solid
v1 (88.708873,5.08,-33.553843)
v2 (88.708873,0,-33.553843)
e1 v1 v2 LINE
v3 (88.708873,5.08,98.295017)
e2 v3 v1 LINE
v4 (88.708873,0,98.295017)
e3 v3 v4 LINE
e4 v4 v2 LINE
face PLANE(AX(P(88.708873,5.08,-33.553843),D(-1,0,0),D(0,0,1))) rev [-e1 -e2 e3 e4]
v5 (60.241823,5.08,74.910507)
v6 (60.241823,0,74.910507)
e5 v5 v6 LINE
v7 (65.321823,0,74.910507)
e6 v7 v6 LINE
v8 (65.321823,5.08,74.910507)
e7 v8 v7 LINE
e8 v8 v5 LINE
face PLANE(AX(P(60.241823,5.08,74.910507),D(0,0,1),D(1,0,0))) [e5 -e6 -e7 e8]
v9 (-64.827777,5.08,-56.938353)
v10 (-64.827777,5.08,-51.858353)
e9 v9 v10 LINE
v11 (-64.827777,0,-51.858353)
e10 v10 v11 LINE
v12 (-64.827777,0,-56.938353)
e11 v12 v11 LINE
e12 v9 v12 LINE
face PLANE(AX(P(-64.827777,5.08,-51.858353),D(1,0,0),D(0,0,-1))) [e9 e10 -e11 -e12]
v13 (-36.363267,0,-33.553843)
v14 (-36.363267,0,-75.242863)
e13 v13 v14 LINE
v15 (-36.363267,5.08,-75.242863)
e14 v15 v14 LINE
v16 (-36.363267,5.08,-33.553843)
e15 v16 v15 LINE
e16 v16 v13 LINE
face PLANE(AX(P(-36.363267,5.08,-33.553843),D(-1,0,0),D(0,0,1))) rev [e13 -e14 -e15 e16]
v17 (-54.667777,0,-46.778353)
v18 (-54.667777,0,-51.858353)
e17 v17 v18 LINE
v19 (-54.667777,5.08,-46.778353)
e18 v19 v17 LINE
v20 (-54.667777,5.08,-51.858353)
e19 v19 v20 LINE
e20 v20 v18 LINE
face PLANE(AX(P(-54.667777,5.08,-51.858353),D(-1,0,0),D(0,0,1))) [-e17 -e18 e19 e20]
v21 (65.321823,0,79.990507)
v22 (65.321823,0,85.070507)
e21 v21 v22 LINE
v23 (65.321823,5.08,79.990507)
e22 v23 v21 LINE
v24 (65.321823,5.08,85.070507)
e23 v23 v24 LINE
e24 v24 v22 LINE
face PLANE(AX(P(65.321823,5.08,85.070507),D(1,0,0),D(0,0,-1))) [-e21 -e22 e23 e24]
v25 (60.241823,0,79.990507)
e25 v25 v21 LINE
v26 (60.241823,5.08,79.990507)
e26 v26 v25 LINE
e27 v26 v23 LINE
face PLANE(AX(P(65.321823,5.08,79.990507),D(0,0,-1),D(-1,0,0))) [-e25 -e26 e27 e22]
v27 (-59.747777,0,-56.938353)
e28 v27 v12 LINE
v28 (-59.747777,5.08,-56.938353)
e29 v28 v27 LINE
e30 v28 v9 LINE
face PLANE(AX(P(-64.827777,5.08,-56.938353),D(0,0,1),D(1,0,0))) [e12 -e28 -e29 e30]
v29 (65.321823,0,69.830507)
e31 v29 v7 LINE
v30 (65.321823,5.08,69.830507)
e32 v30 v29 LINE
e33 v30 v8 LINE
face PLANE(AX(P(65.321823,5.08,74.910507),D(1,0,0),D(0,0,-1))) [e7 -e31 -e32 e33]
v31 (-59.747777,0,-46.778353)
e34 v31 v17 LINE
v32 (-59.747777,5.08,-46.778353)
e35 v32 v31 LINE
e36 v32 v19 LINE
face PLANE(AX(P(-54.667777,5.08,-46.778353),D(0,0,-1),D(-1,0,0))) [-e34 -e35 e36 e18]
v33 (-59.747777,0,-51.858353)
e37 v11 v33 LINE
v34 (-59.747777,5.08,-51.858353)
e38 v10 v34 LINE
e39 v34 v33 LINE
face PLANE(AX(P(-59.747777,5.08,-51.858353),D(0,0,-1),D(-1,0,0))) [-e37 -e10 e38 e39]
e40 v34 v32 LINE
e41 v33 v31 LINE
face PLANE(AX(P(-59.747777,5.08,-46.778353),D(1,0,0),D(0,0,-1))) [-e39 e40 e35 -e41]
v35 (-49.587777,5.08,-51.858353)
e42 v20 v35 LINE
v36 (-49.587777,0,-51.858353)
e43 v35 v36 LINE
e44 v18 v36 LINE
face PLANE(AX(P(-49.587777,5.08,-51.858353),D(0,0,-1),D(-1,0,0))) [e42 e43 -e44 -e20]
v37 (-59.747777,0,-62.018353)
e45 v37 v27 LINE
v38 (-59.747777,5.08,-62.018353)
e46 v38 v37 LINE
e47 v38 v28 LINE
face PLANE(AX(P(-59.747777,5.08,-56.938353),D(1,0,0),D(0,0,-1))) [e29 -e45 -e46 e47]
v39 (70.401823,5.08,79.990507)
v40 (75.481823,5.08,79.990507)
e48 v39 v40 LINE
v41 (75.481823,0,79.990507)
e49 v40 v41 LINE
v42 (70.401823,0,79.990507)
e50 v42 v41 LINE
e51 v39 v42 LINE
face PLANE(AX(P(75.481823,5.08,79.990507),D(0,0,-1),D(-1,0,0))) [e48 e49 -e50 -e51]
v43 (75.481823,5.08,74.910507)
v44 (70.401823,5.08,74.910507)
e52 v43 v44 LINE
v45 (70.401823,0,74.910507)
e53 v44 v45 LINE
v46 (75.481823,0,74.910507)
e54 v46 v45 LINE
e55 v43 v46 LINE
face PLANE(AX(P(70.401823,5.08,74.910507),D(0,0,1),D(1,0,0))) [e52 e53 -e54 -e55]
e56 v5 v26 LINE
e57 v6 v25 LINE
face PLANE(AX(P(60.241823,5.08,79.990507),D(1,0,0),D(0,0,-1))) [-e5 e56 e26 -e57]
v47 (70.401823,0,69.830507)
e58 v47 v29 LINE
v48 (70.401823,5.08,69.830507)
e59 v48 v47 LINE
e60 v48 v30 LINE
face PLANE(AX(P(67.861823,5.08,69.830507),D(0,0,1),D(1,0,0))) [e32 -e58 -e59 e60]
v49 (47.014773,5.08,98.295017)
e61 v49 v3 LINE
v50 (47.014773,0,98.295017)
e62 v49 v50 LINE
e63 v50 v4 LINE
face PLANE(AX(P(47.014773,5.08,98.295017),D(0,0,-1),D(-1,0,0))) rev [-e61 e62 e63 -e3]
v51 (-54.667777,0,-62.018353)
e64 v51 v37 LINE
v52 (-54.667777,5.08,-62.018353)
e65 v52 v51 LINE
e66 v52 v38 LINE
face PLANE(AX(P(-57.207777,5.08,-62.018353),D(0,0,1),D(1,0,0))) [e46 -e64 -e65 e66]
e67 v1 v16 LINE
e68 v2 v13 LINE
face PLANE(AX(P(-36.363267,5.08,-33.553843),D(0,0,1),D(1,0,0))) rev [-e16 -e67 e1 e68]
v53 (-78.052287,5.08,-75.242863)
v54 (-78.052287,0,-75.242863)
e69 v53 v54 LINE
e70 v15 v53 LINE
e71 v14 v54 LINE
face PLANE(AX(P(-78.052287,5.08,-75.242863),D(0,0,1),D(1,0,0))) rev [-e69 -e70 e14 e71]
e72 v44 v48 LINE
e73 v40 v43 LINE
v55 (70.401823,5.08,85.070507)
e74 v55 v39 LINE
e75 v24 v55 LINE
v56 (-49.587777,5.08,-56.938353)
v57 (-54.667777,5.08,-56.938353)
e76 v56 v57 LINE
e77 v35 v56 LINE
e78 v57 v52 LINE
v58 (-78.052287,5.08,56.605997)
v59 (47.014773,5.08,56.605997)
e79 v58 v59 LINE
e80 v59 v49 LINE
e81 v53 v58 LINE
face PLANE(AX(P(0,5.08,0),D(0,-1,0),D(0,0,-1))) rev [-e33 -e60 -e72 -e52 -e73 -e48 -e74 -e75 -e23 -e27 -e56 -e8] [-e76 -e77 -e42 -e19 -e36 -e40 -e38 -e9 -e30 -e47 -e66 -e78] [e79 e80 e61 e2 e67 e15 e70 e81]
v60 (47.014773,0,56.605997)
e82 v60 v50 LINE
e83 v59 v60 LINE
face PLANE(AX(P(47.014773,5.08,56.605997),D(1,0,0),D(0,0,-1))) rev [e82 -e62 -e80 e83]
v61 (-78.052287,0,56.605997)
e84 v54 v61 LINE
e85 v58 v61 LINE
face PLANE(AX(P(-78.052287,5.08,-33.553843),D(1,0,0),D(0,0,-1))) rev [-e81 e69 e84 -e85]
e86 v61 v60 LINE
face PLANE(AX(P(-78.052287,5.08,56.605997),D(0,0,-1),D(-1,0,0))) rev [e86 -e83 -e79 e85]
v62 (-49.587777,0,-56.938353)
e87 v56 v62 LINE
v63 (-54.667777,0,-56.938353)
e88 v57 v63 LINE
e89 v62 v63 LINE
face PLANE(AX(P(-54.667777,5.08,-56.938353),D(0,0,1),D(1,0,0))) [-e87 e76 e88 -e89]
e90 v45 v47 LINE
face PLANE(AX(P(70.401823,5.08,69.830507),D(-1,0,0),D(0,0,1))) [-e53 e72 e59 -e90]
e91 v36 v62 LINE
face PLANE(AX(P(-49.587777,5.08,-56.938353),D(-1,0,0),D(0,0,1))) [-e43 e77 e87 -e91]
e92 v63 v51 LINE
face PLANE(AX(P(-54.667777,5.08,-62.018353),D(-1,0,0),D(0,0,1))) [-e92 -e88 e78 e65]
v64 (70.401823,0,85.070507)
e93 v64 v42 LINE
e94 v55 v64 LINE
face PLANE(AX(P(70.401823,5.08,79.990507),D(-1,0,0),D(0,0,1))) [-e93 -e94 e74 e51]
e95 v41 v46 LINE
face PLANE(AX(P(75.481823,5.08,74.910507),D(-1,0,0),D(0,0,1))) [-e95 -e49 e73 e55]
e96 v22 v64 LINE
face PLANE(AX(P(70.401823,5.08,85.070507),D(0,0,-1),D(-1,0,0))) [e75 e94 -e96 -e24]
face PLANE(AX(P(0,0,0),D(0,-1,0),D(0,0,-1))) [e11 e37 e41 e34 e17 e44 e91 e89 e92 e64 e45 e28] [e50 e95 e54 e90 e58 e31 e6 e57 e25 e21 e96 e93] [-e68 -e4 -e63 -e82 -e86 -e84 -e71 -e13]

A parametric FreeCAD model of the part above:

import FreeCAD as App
import Part
import Sketcher

V = App.Vector
Q = App.Units.Quantity


def add_polygon(sketch, points):
    """Adds a closed chain of lines whose ends are joined by coincident constraints."""
    first, n = sketch.GeometryCount, len(points)
    for a, b in zip(points, points[1:] + points[:1]):
        sketch.addGeometry(Part.LineSegment(App.Vector(*a, 0), App.Vector(*b, 0)), False)
    for i in range(n):
        sketch.addConstraint(Sketcher.Constraint("Coincident", first + i, 2, first + (i + 1) % n, 1))

doc = App.newDocument("Part")
body = doc.addObject("PartDesign::Body", "Body")

sketch1 = doc.addObject("Sketcher::SketchObject", "Sketch")
body.addObject(sketch1)
sketch1.AttachmentSupport = (doc.XZ_Plane, [""])
sketch1.MapMode = "FlatFace"
add_polygon(sketch1, [(89, -34), (-36, -34), (-36, -75), (-78, -75), (-78, 57), (47, 57), (47, 98), (89, 98)])
add_polygon(sketch1, [(60, 75), (65, 75), (65, 70), (70, 70), (70, 75), (75, 75), (75, 80), (70, 80), (70, 85), (65, 85), (65, 80), (60, 80)])
add_polygon(sketch1, [(-55, -62), (-55, -57), (-50, -57), (-50, -52), (-55, -52), (-55, -47), (-60, -47), (-60, -52), (-65, -52), (-65, -57), (-60, -57), (-60, -62)])
sketch1.addConstraint(Sketcher.Constraint("Horizontal", 0))
sketch1.addConstraint(Sketcher.Constraint("Vertical", 1))
sketch1.addConstraint(Sketcher.Constraint("Horizontal", 2))
sketch1.addConstraint(Sketcher.Constraint("Vertical", 3))
sketch1.addConstraint(Sketcher.Constraint("Horizontal", 4))
sketch1.addConstraint(Sketcher.Constraint("Vertical", 5))
sketch1.addConstraint(Sketcher.Constraint("Horizontal", 6))
sketch1.addConstraint(Sketcher.Constraint("Vertical", 7))
sketch1.addConstraint(Sketcher.Constraint("Horizontal", 8))
sketch1.addConstraint(Sketcher.Constraint("Vertical", 9))
sketch1.addConstraint(Sketcher.Constraint("Horizontal", 10))
sketch1.addConstraint(Sketcher.Constraint("Vertical", 11))
sketch1.addConstraint(Sketcher.Constraint("Horizontal", 12))
sketch1.addConstraint(Sketcher.Constraint("Vertical", 13))
sketch1.addConstraint(Sketcher.Constraint("Horizontal", 14))
sketch1.addConstraint(Sketcher.Constraint("Vertical", 15))
sketch1.addConstraint(Sketcher.Constraint("Horizontal", 16))
sketch1.addConstraint(Sketcher.Constraint("Vertical", 17))
sketch1.addConstraint(Sketcher.Constraint("Horizontal", 18))
sketch1.addConstraint(Sketcher.Constraint("Vertical", 19))
sketch1.addConstraint(Sketcher.Constraint("Vertical", 20))
sketch1.addConstraint(Sketcher.Constraint("Horizontal", 21))
sketch1.addConstraint(Sketcher.Constraint("Vertical", 22))
sketch1.addConstraint(Sketcher.Constraint("Horizontal", 23))
sketch1.addConstraint(Sketcher.Constraint("Vertical", 24))
sketch1.addConstraint(Sketcher.Constraint("Horizontal", 25))
sketch1.addConstraint(Sketcher.Constraint("Vertical", 26))
sketch1.addConstraint(Sketcher.Constraint("Horizontal", 27))
sketch1.addConstraint(Sketcher.Constraint("Vertical", 28))
sketch1.addConstraint(Sketcher.Constraint("Horizontal", 29))
sketch1.addConstraint(Sketcher.Constraint("Vertical", 30))
sketch1.addConstraint(Sketcher.Constraint("Horizontal", 31))
sketch1.addConstraint(Sketcher.Constraint("Horizontal", 8, 2, 11, 2))
sketch1.addConstraint(Sketcher.Constraint("Horizontal", 14, 2, 17, 2))
sketch1.addConstraint(Sketcher.Constraint("Horizontal", 23, 2, 26, 2))
sketch1.addConstraint(Sketcher.Constraint("Horizontal", 21, 2, 28, 2))
sketch1.addConstraint(Sketcher.Constraint("Vertical", 11, 2, 14, 2))
sketch1.addConstraint(Sketcher.Constraint("Vertical", 9, 2, 16, 2))
sketch1.addConstraint(Sketcher.Constraint("Vertical", 20, 2, 23, 2))
sketch1.addConstraint(Sketcher.Constraint("Vertical", 26, 2, 29, 2))
sketch1.addConstraint(Sketcher.Constraint("Equal", 8, 10))
sketch1.addConstraint(Sketcher.Constraint("Equal", 10, 12))
sketch1.addConstraint(Sketcher.Constraint("Equal", 18, 21))
sketch1.addConstraint(Sketcher.Constraint("Equal", 23, 25))
sketch1.addConstraint(Sketcher.Constraint("Equal", 25, 27))
sketch1.addConstraint(Sketcher.Constraint("Equal", 2, 1))
sketch1.addConstraint(Sketcher.Constraint("Equal", 1, 5))
sketch1.addConstraint(Sketcher.Constraint("Equal", 31, 9))
sketch1.addConstraint(Sketcher.Constraint("Equal", 11, 13))
sketch1.addConstraint(Sketcher.Constraint("Equal", 13, 15))
sketch1.addConstraint(Sketcher.Constraint("Equal", 19, 20))
sketch1.addConstraint(Sketcher.Constraint("Equal", 20, 22))
sketch1.addConstraint(Sketcher.Constraint("Equal", 22, 24))
sketch1.addConstraint(Sketcher.Constraint("DistanceX", 8, 1, 8, 2, Q("0.2 in")))
sketch1.addConstraint(Sketcher.Constraint("DistanceX", 0, 2, 0, 1, Q("4.9241 in")))
sketch1.addConstraint(Sketcher.Constraint("DistanceX", 2, 2, 2, 1, Q("1.6413 in")))
sketch1.addConstraint(Sketcher.Constraint("DistanceX", 4, 1, 4, 2, Q("4.9239 in")))
sketch1.addConstraint(Sketcher.Constraint("DistanceY", 3, 1, 3, 2, Q("5.1909 in")))
sketch1.addConstraint(Sketcher.Constraint("DistanceX", 4, 2, 8, 2, 18.30705))
sketch1.addConstraint(Sketcher.Constraint("DistanceY", 4, 2, 8, 2, 18.30451))
sketch1.addConstraint(Sketcher.Constraint("DistanceX", 20, 2, 1, 2, 18.30451))
sketch1.addConstraint(Sketcher.Constraint("DistanceY", 1, 2, 20, 2, 18.30451))
sketch1.addConstraint(Sketcher.Constraint("DistanceX", 0, 2, -1, 1, 36.363267))
sketch1.addConstraint(Sketcher.Constraint("DistanceY", 0, 2, -1, 1, 33.553843))
pad1 = doc.addObject("PartDesign::Pad", "Pad")
body.addObject(pad1)
pad1.Profile = sketch1
pad1.Length = Q("0.2 in")
pad1.Reversed = True

doc.recompute()
